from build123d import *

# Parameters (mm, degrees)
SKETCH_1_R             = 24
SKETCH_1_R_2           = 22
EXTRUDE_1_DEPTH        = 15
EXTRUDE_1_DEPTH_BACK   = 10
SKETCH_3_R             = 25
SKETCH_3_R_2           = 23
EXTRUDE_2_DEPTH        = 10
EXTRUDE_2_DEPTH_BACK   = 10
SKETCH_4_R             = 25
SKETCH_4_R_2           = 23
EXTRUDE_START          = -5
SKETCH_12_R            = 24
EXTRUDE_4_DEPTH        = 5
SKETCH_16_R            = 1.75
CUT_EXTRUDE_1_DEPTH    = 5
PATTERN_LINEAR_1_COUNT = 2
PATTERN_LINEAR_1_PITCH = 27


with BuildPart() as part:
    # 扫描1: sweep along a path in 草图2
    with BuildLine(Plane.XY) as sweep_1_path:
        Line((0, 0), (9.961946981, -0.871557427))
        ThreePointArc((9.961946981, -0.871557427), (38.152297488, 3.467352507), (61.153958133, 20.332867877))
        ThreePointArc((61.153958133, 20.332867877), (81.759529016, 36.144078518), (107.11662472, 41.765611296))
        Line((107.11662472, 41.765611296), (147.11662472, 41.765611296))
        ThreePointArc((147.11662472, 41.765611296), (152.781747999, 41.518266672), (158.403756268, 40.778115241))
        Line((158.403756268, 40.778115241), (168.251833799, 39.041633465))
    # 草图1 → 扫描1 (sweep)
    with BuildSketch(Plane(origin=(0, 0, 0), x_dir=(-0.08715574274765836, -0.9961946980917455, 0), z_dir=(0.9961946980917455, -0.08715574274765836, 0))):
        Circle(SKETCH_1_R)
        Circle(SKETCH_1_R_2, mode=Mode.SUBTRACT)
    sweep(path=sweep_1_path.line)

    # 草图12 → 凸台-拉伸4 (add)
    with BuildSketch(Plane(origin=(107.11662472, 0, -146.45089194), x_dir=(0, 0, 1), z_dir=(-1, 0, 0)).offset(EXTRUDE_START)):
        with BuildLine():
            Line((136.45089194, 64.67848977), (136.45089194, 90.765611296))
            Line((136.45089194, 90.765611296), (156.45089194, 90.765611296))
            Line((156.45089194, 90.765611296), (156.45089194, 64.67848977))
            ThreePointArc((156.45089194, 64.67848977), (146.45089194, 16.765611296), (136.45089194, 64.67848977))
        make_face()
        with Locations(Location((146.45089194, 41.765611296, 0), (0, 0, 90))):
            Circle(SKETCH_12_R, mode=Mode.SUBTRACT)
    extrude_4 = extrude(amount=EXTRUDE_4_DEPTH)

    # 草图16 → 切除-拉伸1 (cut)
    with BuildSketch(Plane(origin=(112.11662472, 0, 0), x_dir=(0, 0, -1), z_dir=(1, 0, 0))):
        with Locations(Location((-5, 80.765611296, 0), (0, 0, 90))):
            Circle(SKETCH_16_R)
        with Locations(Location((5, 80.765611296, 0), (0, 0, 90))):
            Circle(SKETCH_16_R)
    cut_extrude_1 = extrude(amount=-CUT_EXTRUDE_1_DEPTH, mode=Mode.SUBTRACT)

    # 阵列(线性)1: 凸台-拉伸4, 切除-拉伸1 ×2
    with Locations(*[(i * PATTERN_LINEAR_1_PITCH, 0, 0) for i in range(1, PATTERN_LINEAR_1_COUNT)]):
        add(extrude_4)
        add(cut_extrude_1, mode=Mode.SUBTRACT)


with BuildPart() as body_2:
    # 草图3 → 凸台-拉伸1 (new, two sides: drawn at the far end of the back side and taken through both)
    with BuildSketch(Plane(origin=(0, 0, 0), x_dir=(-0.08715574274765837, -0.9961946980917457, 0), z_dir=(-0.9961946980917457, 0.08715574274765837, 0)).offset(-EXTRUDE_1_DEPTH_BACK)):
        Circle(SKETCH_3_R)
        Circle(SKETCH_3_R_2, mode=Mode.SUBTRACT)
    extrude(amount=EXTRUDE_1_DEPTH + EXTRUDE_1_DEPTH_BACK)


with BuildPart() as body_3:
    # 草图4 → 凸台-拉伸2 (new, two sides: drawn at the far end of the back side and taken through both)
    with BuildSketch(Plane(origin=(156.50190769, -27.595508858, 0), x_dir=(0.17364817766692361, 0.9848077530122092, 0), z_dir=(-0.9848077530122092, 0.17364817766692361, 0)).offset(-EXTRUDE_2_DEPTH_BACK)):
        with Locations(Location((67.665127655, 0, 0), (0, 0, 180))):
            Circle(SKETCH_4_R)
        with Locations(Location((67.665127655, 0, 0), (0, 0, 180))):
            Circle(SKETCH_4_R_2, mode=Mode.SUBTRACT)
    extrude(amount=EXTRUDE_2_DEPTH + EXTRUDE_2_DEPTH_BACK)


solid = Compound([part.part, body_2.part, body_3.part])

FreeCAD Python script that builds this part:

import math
import FreeCAD as App
import Part
import Sketcher
from FreeCAD import Vector
Q = App.Units.Quantity

doc = App.newDocument("Part")
params = doc.addObject("Spreadsheet::Sheet", "Params")
for row, (alias, value) in enumerate([
    ("sketch1_diameter", "48 mm"),
    ("sketch1_diameter2", "44 mm"),
    ("sketch2_radius", "60 mm"),
    ("sketch2_radius2", "65 mm"),
    ("sketch2_width", "40 mm"),
    ("sketch2_length", "10 mm"),
    ("sketch3_diameter", "48 mm"),
    ("sketch3_radius", "25 mm"),
    ("sketch3_height", "20 mm"),
    ("pad1_length", "5 mm"),
    ("sketch4_diameter", "3.5 mm"),
    ("pocket1_length", "5 mm"),
    ("linearpattern_pitch", "27 mm"),
    ("sketch5_diameter", "50 mm"),
    ("sketch5_diameter2", "46 mm"),
    ("pad2_length", "15 mm"),
    ("pad2_length2", "10 mm"),
    ("sketch6_diameter", "50 mm"),
    ("sketch6_diameter2", "46 mm"),
    ("pad3_length", "10 mm"),
    ("pad3_length2", "10 mm"),
], start=1):
    params.set(f"A{row}", alias)
    params.set(f"B{row}", "=" + value)
    params.setAlias(f"B{row}", alias)

body = doc.addObject("PartDesign::Body", "Body")

# Sketch on an angled plane
sketch1 = body.newObject("Sketcher::SketchObject", "Sketch")
sketch1.Placement = App.Placement(Vector(0, 0, 0), App.Rotation(Vector(-0.087155743, -0.996194698, 0), Vector(0, 0, -1), Vector(0.996194698, -0.087155743, 0), "ZXY"))
sketch1.addGeometry([
    Part.Circle(Vector(0, 0, 0), Vector(0, 0, 1), 24),
    Part.Circle(Vector(0, 0, 0), Vector(0, 0, 1), 22),
], False)
sketch1.addConstraint([
    Sketcher.Constraint("Coincident", 0, 3, -1, 1),
    Sketcher.Constraint("Coincident", 1, 3, -1, 1),
    Sketcher.Constraint("Diameter", 0, 48.0),
    Sketcher.Constraint("Diameter", 1, 44.0),
])
sketch1.setExpression("Constraints[2]", "Params.sketch1_diameter")
sketch1.setExpression("Constraints[3]", "Params.sketch1_diameter2")

# Sketch on XY plane
sketch2 = body.newObject("Sketcher::SketchObject", "Sketch001")
sketch2.AttachmentSupport = (doc.getObject("XY_Plane"), [""])
sketch2.MapMode = "FlatFace"
sketch2.addGeometry([
    Part.LineSegment(Vector(0, 0, 0), Vector(10, -1, 0)),  # 0
    Part.ArcOfCircle(Part.Circle(Vector(15, 59, 0), Vector(0, 0, 1), 60), math.radians(-95), math.radians(-40)),  # 1
    Part.ArcOfCircle(Part.Circle(Vector(107, -18, 0), Vector(0, 0, 1), 60), math.radians(90), math.radians(140)),  # 2
    Part.LineSegment(Vector(107, 42, 0), Vector(147, 42, 0)),  # 3
    Part.ArcOfCircle(Part.Circle(Vector(147, -23, 0), Vector(0, 0, 1), 65), math.radians(80), math.radians(90)),  # 4
    Part.LineSegment(Vector(158, 41, 0), Vector(168, 39, 0)),  # 5
], False)
sketch2.addConstraint([
    Sketcher.Constraint("Tangent", 0, 2, 1, 1),
    Sketcher.Constraint("Tangent", 1, 2, 2, 2),
    Sketcher.Constraint("Tangent", 2, 1, 3, 1),
    Sketcher.Constraint("Tangent", 3, 2, 4, 2),
    Sketcher.Constraint("Tangent", 4, 1, 5, 1),
    Sketcher.Constraint("Horizontal", 3),
    Sketcher.Constraint("Coincident", 0, 1, -1, 1),
    Sketcher.Constraint("Equal", 1, 2),
    Sketcher.Constraint("Equal", 0, 5),
    Sketcher.Constraint("Radius", 1, 60.0),
    Sketcher.Constraint("Radius", 4, 65.0),
    Sketcher.Constraint("DistanceX", 3, 1, 3, 2, 40.0),
    Sketcher.Constraint("Angle", 0, Q("-5 deg")),
    Sketcher.Constraint("Angle", 5, Q("-10 deg")),
    Sketcher.Constraint("Distance", 0, 10.0),
    Sketcher.Constraint("DistanceY", 2, 3, -1, 1, 18.234389),
])
sketch2.setExpression("Constraints[9]", "Params.sketch2_radius")
sketch2.setExpression("Constraints[10]", "Params.sketch2_radius2")
sketch2.setExpression("Constraints[11]", "Params.sketch2_width")
sketch2.setExpression("Constraints[14]", "Params.sketch2_length")
doc.recompute()

additivepipe = body.newObject("PartDesign::AdditivePipe", "AdditivePipe")
additivepipe.Profile = sketch1
additivepipe.Spine = (sketch2, ["Edge1", "Edge2", "Edge3", "Edge4", "Edge5", "Edge6"])

# Sketch on YZ plane
sketch3 = body.newObject("Sketcher::SketchObject", "Sketch002")
sketch3.AttachmentSupport = (doc.getObject("YZ_Plane"), [""])
sketch3.MapMode = "FlatFace"
sketch3.AttachmentOffset = App.Placement(Vector(0, 0, 112.116625), App.Rotation())
sketch3.addGeometry([
    Part.LineSegment(Vector(91, -10, 0), Vector(65, -10, 0)),  # 0
    Part.ArcOfCircle(Part.Circle(Vector(42, 0, 0), Vector(0, 0, 1), 25), math.radians(24), math.radians(336)),  # 1
    Part.LineSegment(Vector(65, 10, 0), Vector(91, 10, 0)),  # 2
    Part.LineSegment(Vector(91, 10, 0), Vector(91, -10, 0)),  # 3
    Part.Circle(Vector(42, 0, 0), Vector(0, 0, 1), 24),  # 4
], False)
sketch3.addConstraint([
    Sketcher.Constraint("Coincident", 0, 2, 1, 2),
    Sketcher.Constraint("Coincident", 1, 1, 2, 1),
    Sketcher.Constraint("Coincident", 2, 2, 3, 1),
    Sketcher.Constraint("Coincident", 3, 2, 0, 1),
    Sketcher.Constraint("Horizontal", 0),
    Sketcher.Constraint("Horizontal", 2),
    Sketcher.Constraint("Vertical", 3),
    Sketcher.Constraint("Coincident", 4, 3, 1, 3),
    Sketcher.Constraint("Symmetric", 0, 2, 1, 1, -1),
    Sketcher.Constraint("Diameter", 4, 48.0),
    Sketcher.Constraint("Radius", 1, 25.0),
    Sketcher.Constraint("DistanceY", 3, 2, 3, 1, 20.0),
    Sketcher.Constraint("DistanceX", 1, 3, 2, 2, 49.0),
    Sketcher.Constraint("DistanceX", -1, 1, 1, 3, 41.765611),
])
sketch3.setExpression("Constraints[9]", "Params.sketch3_diameter")
sketch3.setExpression("Constraints[10]", "Params.sketch3_radius")
sketch3.setExpression("Constraints[11]", "Params.sketch3_height")
pad1 = body.newObject("PartDesign::Pad", "Pad")
pad1.Profile = sketch3
pad1.setExpression("Length", "Params.pad1_length")
pad1.Reversed = True

# Sketch on YZ plane
sketch4 = body.newObject("Sketcher::SketchObject", "Sketch003")
sketch4.AttachmentSupport = (doc.getObject("YZ_Plane"), [""])
sketch4.MapMode = "FlatFace"
sketch4.AttachmentOffset = App.Placement(Vector(0, 0, 112.116625), App.Rotation())
sketch4.addGeometry([
    Part.Circle(Vector(80.8, 5, 0), Vector(0, 0, 1), 1.8),
    Part.Circle(Vector(80.8, -5, 0), Vector(0, 0, 1), 1.8),
], False)
sketch4.addConstraint([
    Sketcher.Constraint("Equal", 0, 1),
    Sketcher.Constraint("Symmetric", 0, 3, 1, 3, -1),
    Sketcher.Constraint("Diameter", 0, 3.5),
    Sketcher.Constraint("DistanceY", -1, 1, 0, 3, 5.0),
    Sketcher.Constraint("DistanceX", -1, 1, 0, 3, 80.765611),
])
sketch4.setExpression("Constraints[2]", "Params.sketch4_diameter")
pocket1 = body.newObject("PartDesign::Pocket", "Pocket")
pocket1.Profile = sketch4
pocket1.setExpression("Length", "Params.pocket1_length")
doc.recompute()

linearpattern = body.newObject("PartDesign::LinearPattern", "LinearPattern")
linearpattern.Originals = [pad1, pocket1]
linearpattern.Direction = (doc.getObject("X_Axis"), [""])
linearpattern.Mode = "offset"
linearpattern.setExpression("Offset", "Params.linearpattern_pitch")
linearpattern.Occurrences = 2
body.Tip = linearpattern
body2 = doc.addObject("PartDesign::Body", "Body001")

# Sketch on an angled plane
sketch5 = body2.newObject("Sketcher::SketchObject", "Sketch004")
sketch5.Placement = App.Placement(Vector(0, 0, 0), App.Rotation(Vector(-0.087155743, -0.996194698, 0), Vector(0, 0, 1), Vector(-0.996194698, 0.087155743, 0), "ZXY"))
sketch5.addGeometry([
    Part.Circle(Vector(0, 0, 0), Vector(0, 0, 1), 25),
    Part.Circle(Vector(0, 0, 0), Vector(0, 0, 1), 23),
], False)
sketch5.addConstraint([
    Sketcher.Constraint("Coincident", 0, 3, -1, 1),
    Sketcher.Constraint("Coincident", 1, 3, -1, 1),
    Sketcher.Constraint("Diameter", 0, 50.0),
    Sketcher.Constraint("Diameter", 1, 46.0),
])
sketch5.setExpression("Constraints[2]", "Params.sketch5_diameter")
sketch5.setExpression("Constraints[3]", "Params.sketch5_diameter2")
pad2 = body2.newObject("PartDesign::Pad", "Pad001")
pad2.Profile = sketch5
pad2.Type = "TwoLengths"
pad2.setExpression("Length", "Params.pad2_length")
pad2.setExpression("Length2", "Params.pad2_length2")
body3 = doc.addObject("PartDesign::Body", "Body002")

# Sketch on an angled plane
sketch6 = body3.newObject("Sketcher::SketchObject", "Sketch005")
sketch6.Placement = App.Placement(Vector(156.501908, -27.595509, 0), App.Rotation(Vector(0.173648178, 0.984807753, 0), Vector(0, 0, -1), Vector(-0.984807753, 0.173648178, 0), "ZXY"))
sketch6.addGeometry([
    Part.Circle(Vector(68, 0, 0), Vector(0, 0, 1), 25),
    Part.Circle(Vector(68, 0, 0), Vector(0, 0, 1), 23),
], False)
sketch6.addConstraint([
    Sketcher.Constraint("Coincident", 1, 3, 0, 3),
    Sketcher.Constraint("PointOnObject", 0, 3, -1),
    Sketcher.Constraint("Diameter", 0, 50.0),
    Sketcher.Constraint("Diameter", 1, 46.0),
    Sketcher.Constraint("DistanceX", -1, 1, 0, 3, 67.665128),
])
sketch6.setExpression("Constraints[2]", "Params.sketch6_diameter")
sketch6.setExpression("Constraints[3]", "Params.sketch6_diameter2")
pad3 = body3.newObject("PartDesign::Pad", "Pad002")
pad3.Profile = sketch6
pad3.Type = "TwoLengths"
pad3.setExpression("Length", "Params.pad3_length")
pad3.setExpression("Length2", "Params.pad3_length2")

doc.recompute()
